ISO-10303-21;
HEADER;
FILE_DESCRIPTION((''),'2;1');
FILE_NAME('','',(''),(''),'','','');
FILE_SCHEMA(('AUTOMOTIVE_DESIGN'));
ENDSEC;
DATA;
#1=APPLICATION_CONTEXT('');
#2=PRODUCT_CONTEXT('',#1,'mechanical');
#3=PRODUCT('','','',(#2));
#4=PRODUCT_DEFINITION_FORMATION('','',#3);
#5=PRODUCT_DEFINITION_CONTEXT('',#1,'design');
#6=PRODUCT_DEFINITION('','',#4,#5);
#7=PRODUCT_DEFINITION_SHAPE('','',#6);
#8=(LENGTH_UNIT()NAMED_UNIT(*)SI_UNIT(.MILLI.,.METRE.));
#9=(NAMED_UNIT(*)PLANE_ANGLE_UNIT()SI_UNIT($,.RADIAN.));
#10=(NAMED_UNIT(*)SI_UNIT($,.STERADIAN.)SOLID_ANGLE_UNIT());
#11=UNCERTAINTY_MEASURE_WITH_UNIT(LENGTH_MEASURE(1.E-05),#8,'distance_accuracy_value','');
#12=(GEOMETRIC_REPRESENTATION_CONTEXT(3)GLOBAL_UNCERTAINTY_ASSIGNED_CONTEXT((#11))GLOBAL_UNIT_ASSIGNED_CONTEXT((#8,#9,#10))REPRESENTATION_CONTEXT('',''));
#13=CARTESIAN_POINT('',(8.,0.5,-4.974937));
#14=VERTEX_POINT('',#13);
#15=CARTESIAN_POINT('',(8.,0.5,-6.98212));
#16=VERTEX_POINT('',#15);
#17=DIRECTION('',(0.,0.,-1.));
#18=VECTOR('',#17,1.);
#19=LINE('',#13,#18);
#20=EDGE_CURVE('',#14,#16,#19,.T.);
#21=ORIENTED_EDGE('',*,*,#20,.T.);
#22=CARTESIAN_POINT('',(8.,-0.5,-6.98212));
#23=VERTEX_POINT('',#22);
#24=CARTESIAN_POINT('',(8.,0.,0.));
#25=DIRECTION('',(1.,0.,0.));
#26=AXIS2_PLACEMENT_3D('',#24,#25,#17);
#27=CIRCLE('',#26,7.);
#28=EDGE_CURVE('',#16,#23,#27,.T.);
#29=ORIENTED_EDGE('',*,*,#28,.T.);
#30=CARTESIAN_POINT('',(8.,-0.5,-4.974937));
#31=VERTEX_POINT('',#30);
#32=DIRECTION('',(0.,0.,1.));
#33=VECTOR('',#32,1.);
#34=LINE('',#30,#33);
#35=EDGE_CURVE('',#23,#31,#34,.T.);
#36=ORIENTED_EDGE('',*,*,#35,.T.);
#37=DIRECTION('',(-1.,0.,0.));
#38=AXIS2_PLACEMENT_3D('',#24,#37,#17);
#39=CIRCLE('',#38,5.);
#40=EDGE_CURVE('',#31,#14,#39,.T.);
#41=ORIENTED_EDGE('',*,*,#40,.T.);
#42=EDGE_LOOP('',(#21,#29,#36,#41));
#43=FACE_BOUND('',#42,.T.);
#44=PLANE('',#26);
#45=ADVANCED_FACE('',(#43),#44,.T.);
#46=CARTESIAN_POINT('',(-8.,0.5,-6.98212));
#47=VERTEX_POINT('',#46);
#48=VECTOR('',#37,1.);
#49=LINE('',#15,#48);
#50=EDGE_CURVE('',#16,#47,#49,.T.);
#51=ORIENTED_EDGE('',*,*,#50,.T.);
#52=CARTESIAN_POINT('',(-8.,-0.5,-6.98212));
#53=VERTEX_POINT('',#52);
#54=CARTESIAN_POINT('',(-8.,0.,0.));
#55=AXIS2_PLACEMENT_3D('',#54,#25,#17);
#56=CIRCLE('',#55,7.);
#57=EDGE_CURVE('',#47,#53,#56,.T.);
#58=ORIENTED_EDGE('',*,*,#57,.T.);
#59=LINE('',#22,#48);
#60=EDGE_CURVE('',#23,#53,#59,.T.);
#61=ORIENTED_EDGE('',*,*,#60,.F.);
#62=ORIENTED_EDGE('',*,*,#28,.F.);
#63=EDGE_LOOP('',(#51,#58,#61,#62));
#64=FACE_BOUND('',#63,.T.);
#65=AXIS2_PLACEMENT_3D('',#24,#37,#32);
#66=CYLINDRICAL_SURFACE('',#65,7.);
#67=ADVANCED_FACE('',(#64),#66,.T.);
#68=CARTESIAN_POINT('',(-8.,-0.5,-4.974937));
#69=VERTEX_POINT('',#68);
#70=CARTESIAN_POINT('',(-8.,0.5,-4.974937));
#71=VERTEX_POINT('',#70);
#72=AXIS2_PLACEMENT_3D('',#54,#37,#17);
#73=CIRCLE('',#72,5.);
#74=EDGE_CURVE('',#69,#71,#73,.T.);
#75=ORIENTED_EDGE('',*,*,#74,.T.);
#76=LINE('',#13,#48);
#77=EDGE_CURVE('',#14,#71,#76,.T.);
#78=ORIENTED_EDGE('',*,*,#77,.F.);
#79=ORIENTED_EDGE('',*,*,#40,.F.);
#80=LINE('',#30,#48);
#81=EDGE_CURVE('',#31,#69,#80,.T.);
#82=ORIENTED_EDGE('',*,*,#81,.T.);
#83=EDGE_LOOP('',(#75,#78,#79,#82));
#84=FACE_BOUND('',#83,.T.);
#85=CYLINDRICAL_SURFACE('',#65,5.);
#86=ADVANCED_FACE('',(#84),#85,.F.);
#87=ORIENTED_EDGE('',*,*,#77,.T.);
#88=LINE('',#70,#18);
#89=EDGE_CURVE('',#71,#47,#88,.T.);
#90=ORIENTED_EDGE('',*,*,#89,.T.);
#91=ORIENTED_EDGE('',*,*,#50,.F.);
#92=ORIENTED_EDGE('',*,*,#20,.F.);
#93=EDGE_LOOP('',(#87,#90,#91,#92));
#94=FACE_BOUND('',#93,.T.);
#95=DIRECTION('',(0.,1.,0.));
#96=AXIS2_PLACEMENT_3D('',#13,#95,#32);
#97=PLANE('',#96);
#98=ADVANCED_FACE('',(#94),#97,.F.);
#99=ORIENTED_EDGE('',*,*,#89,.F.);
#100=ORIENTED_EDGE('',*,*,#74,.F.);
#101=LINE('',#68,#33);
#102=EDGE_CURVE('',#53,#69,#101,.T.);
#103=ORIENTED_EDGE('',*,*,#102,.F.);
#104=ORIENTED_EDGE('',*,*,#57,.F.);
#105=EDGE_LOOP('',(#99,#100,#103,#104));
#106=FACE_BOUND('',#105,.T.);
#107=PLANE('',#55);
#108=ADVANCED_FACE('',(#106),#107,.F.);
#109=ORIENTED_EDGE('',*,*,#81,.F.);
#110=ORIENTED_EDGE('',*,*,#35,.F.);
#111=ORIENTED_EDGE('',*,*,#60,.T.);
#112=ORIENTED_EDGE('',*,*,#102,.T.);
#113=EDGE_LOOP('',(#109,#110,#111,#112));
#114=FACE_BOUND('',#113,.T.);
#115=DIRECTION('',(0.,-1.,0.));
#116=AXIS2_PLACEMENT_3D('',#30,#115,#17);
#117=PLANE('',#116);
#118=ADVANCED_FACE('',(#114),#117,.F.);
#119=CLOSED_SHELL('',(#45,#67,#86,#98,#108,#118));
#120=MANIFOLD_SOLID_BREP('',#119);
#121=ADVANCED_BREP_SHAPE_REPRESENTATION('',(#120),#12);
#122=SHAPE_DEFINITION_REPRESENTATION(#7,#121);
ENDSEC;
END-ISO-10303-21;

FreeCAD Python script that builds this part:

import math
import FreeCAD as App
import Part
import Sketcher
from FreeCAD import Vector
Q = App.Units.Quantity

doc = App.newDocument("Part")
body = doc.addObject("PartDesign::Body", "Body")

# Sketch on YZ plane
sketch1 = body.newObject("Sketcher::SketchObject", "Sketch")
sketch1.AttachmentSupport = (doc.getObject("YZ_Plane"), [""])
sketch1.MapMode = "FlatFace"
sketch1.addGeometry(Part.LineSegment(Vector(0.5, -5, 0), Vector(0.5, -7, 0)), False)
sketch1.addGeometry(Part.ArcOfCircle(Part.Circle(Vector(0, 0, 0), Vector(0, 0, 1), 7), math.radians(-86), math.radians(266)), False)
sketch1.addGeometry(Part.LineSegment(Vector(-0.5, -7, 0), Vector(-0.5, -5, 0)), False)
sketch1.addGeometry(Part.ArcOfCircle(Part.Circle(Vector(0, 0, 0), Vector(0, 0, 1), 5), math.radians(-84), math.radians(264)), False)
sketch1.addConstraint(Sketcher.Constraint("Coincident", 0, 2, 1, 1))
sketch1.addConstraint(Sketcher.Constraint("Coincident", 1, 2, 2, 1))
sketch1.addConstraint(Sketcher.Constraint("Coincident", 2, 2, 3, 2))
sketch1.addConstraint(Sketcher.Constraint("Coincident", 3, 1, 0, 1))
sketch1.addConstraint(Sketcher.Constraint("Vertical", 0))
sketch1.addConstraint(Sketcher.Constraint("Vertical", 2))
sketch1.addConstraint(Sketcher.Constraint("Coincident", 1, 3, -1, 1))
sketch1.addConstraint(Sketcher.Constraint("Coincident", 3, 3, -1, 1))
sketch1.addConstraint(Sketcher.Constraint("Horizontal", 0, 2, 1, 2))
sketch1.addConstraint(Sketcher.Constraint("Radius", 1, Q("7 mm")))
sketch1.addConstraint(Sketcher.Constraint("Radius", 3, Q("5 mm")))
sketch1.addConstraint(Sketcher.Constraint("DistanceX", 1, 2, 0, 2, Q("1 mm")))
pad1 = body.newObject("PartDesign::Pad", "Pad")
pad1.Profile = sketch1
pad1.Length = 16
pad1.Midplane = True

doc.recompute()
